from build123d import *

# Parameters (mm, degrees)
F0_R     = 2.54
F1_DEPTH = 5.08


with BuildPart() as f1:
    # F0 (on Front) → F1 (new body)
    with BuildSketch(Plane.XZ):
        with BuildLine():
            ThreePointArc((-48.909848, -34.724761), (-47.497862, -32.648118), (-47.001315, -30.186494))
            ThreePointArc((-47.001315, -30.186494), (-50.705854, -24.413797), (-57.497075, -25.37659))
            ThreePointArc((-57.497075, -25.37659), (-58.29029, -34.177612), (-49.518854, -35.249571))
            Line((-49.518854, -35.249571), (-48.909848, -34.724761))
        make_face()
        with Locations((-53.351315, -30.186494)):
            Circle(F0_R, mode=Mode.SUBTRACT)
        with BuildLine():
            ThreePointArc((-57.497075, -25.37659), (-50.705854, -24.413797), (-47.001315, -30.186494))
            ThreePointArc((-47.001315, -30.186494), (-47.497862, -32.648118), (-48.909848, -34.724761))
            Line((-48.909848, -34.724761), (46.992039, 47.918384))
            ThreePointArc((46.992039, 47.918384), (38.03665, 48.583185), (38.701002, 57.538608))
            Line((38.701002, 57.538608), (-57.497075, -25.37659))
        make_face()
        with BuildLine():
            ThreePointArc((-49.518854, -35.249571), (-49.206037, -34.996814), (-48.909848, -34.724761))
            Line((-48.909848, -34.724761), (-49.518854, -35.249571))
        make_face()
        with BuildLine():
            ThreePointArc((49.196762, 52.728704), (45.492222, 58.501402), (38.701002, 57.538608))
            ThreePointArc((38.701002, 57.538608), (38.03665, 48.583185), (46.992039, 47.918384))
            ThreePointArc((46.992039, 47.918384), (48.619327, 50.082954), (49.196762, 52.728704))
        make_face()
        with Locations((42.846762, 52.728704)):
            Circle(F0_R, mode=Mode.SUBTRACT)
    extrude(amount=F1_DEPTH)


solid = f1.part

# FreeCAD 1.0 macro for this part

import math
import FreeCAD as App
import Part
import Sketcher

V = App.Vector
Q = App.Units.Quantity

doc = App.newDocument("Part")
body = doc.addObject("PartDesign::Body", "Body")

sketch1 = doc.addObject("Sketcher::SketchObject", "Sketch")
body.addObject(sketch1)
sketch1.AttachmentSupport = (doc.XZ_Plane, [""])
sketch1.MapMode = "FlatFace"
sketch1.addGeometry([
    Part.LineSegment(V(-48.909848, -34.724761, 0), V(46.992039, 47.918384, 0)),
    Part.ArcOfCircle(Part.Circle(V(42.846762, 52.728704, 0), V(0, 0, 1), 6.35), math.radians(-49.246991), math.radians(-0.000001)),
    Part.ArcOfCircle(Part.Circle(V(42.846762, 52.728704, 0), V(0, 0, 1), 6.35), math.radians(0), math.radians(130.758759)),
    Part.LineSegment(V(38.701002, 57.538608, 0), V(-57.497075, -25.37659, 0)),
    Part.ArcOfCircle(Part.Circle(V(-53.351314, -30.186494, 0), V(0, 0, 1), 6.35), math.radians(130.758765), math.radians(307.123642)),
    Part.ArcOfCircle(Part.Circle(V(-53.351141, -30.186705, 0), V(0, 0, 1), 6.349728), math.radians(-52.876455), math.radians(-45.617405)),
    Part.Circle(V(-53.351315, -30.186494, 0), V(0, 0, 1), 2.54),
    Part.Circle(V(42.846762, 52.728704, 0), V(0, 0, 1), 2.54),
], False)
sketch1.addConstraint([
    Sketcher.Constraint("Tangent", 0, 2, 1, 1),
    Sketcher.Constraint("Tangent", 1, 2, 2, 1),
    Sketcher.Constraint("Tangent", 2, 2, 3, 1),
    Sketcher.Constraint("Tangent", 3, 2, 4, 1),
    Sketcher.Constraint("Tangent", 4, 2, 5, 1),
    Sketcher.Constraint("Coincident", 5, 2, 0, 1),
    Sketcher.Constraint("Coincident", 6, 3, 4, 3),
    Sketcher.Constraint("Coincident", 7, 3, 1, 3),
    Sketcher.Constraint("Equal", 1, 2),
    Sketcher.Constraint("Equal", 2, 4),
    Sketcher.Constraint("Equal", 6, 7),
    Sketcher.Constraint("Horizontal", 7, 3, 1, 2),
    Sketcher.Constraint("Diameter", 6, Q("0.2 in")),
    Sketcher.Constraint("Radius", 1, Q("0.25 in")),
    Sketcher.Constraint("Distance", 3, Q("5 in")),
    Sketcher.Constraint("Radius", 5, Q("6.349728 mm")),
    Sketcher.Constraint("DistanceX", 7, 3, 0, 2, Q("0.1631999 in")),
    Sketcher.Constraint("DistanceY", 4, 2, 3, 2, Q("0.3887 in")),
    Sketcher.Constraint("DistanceX", -1, 1, 2, 2, Q("38.701002 mm")),
    Sketcher.Constraint("DistanceY", 6, 3, 1, 3, Q("82.915198 mm")),
    Sketcher.Constraint("DistanceY", -1, 1, 2, 2, Q("57.538608 mm")),
])
pad1 = doc.addObject("PartDesign::Pad", "Pad")
body.addObject(pad1)
pad1.Profile = sketch1
pad1.Length = Q("0.2 in")

doc.recompute()
